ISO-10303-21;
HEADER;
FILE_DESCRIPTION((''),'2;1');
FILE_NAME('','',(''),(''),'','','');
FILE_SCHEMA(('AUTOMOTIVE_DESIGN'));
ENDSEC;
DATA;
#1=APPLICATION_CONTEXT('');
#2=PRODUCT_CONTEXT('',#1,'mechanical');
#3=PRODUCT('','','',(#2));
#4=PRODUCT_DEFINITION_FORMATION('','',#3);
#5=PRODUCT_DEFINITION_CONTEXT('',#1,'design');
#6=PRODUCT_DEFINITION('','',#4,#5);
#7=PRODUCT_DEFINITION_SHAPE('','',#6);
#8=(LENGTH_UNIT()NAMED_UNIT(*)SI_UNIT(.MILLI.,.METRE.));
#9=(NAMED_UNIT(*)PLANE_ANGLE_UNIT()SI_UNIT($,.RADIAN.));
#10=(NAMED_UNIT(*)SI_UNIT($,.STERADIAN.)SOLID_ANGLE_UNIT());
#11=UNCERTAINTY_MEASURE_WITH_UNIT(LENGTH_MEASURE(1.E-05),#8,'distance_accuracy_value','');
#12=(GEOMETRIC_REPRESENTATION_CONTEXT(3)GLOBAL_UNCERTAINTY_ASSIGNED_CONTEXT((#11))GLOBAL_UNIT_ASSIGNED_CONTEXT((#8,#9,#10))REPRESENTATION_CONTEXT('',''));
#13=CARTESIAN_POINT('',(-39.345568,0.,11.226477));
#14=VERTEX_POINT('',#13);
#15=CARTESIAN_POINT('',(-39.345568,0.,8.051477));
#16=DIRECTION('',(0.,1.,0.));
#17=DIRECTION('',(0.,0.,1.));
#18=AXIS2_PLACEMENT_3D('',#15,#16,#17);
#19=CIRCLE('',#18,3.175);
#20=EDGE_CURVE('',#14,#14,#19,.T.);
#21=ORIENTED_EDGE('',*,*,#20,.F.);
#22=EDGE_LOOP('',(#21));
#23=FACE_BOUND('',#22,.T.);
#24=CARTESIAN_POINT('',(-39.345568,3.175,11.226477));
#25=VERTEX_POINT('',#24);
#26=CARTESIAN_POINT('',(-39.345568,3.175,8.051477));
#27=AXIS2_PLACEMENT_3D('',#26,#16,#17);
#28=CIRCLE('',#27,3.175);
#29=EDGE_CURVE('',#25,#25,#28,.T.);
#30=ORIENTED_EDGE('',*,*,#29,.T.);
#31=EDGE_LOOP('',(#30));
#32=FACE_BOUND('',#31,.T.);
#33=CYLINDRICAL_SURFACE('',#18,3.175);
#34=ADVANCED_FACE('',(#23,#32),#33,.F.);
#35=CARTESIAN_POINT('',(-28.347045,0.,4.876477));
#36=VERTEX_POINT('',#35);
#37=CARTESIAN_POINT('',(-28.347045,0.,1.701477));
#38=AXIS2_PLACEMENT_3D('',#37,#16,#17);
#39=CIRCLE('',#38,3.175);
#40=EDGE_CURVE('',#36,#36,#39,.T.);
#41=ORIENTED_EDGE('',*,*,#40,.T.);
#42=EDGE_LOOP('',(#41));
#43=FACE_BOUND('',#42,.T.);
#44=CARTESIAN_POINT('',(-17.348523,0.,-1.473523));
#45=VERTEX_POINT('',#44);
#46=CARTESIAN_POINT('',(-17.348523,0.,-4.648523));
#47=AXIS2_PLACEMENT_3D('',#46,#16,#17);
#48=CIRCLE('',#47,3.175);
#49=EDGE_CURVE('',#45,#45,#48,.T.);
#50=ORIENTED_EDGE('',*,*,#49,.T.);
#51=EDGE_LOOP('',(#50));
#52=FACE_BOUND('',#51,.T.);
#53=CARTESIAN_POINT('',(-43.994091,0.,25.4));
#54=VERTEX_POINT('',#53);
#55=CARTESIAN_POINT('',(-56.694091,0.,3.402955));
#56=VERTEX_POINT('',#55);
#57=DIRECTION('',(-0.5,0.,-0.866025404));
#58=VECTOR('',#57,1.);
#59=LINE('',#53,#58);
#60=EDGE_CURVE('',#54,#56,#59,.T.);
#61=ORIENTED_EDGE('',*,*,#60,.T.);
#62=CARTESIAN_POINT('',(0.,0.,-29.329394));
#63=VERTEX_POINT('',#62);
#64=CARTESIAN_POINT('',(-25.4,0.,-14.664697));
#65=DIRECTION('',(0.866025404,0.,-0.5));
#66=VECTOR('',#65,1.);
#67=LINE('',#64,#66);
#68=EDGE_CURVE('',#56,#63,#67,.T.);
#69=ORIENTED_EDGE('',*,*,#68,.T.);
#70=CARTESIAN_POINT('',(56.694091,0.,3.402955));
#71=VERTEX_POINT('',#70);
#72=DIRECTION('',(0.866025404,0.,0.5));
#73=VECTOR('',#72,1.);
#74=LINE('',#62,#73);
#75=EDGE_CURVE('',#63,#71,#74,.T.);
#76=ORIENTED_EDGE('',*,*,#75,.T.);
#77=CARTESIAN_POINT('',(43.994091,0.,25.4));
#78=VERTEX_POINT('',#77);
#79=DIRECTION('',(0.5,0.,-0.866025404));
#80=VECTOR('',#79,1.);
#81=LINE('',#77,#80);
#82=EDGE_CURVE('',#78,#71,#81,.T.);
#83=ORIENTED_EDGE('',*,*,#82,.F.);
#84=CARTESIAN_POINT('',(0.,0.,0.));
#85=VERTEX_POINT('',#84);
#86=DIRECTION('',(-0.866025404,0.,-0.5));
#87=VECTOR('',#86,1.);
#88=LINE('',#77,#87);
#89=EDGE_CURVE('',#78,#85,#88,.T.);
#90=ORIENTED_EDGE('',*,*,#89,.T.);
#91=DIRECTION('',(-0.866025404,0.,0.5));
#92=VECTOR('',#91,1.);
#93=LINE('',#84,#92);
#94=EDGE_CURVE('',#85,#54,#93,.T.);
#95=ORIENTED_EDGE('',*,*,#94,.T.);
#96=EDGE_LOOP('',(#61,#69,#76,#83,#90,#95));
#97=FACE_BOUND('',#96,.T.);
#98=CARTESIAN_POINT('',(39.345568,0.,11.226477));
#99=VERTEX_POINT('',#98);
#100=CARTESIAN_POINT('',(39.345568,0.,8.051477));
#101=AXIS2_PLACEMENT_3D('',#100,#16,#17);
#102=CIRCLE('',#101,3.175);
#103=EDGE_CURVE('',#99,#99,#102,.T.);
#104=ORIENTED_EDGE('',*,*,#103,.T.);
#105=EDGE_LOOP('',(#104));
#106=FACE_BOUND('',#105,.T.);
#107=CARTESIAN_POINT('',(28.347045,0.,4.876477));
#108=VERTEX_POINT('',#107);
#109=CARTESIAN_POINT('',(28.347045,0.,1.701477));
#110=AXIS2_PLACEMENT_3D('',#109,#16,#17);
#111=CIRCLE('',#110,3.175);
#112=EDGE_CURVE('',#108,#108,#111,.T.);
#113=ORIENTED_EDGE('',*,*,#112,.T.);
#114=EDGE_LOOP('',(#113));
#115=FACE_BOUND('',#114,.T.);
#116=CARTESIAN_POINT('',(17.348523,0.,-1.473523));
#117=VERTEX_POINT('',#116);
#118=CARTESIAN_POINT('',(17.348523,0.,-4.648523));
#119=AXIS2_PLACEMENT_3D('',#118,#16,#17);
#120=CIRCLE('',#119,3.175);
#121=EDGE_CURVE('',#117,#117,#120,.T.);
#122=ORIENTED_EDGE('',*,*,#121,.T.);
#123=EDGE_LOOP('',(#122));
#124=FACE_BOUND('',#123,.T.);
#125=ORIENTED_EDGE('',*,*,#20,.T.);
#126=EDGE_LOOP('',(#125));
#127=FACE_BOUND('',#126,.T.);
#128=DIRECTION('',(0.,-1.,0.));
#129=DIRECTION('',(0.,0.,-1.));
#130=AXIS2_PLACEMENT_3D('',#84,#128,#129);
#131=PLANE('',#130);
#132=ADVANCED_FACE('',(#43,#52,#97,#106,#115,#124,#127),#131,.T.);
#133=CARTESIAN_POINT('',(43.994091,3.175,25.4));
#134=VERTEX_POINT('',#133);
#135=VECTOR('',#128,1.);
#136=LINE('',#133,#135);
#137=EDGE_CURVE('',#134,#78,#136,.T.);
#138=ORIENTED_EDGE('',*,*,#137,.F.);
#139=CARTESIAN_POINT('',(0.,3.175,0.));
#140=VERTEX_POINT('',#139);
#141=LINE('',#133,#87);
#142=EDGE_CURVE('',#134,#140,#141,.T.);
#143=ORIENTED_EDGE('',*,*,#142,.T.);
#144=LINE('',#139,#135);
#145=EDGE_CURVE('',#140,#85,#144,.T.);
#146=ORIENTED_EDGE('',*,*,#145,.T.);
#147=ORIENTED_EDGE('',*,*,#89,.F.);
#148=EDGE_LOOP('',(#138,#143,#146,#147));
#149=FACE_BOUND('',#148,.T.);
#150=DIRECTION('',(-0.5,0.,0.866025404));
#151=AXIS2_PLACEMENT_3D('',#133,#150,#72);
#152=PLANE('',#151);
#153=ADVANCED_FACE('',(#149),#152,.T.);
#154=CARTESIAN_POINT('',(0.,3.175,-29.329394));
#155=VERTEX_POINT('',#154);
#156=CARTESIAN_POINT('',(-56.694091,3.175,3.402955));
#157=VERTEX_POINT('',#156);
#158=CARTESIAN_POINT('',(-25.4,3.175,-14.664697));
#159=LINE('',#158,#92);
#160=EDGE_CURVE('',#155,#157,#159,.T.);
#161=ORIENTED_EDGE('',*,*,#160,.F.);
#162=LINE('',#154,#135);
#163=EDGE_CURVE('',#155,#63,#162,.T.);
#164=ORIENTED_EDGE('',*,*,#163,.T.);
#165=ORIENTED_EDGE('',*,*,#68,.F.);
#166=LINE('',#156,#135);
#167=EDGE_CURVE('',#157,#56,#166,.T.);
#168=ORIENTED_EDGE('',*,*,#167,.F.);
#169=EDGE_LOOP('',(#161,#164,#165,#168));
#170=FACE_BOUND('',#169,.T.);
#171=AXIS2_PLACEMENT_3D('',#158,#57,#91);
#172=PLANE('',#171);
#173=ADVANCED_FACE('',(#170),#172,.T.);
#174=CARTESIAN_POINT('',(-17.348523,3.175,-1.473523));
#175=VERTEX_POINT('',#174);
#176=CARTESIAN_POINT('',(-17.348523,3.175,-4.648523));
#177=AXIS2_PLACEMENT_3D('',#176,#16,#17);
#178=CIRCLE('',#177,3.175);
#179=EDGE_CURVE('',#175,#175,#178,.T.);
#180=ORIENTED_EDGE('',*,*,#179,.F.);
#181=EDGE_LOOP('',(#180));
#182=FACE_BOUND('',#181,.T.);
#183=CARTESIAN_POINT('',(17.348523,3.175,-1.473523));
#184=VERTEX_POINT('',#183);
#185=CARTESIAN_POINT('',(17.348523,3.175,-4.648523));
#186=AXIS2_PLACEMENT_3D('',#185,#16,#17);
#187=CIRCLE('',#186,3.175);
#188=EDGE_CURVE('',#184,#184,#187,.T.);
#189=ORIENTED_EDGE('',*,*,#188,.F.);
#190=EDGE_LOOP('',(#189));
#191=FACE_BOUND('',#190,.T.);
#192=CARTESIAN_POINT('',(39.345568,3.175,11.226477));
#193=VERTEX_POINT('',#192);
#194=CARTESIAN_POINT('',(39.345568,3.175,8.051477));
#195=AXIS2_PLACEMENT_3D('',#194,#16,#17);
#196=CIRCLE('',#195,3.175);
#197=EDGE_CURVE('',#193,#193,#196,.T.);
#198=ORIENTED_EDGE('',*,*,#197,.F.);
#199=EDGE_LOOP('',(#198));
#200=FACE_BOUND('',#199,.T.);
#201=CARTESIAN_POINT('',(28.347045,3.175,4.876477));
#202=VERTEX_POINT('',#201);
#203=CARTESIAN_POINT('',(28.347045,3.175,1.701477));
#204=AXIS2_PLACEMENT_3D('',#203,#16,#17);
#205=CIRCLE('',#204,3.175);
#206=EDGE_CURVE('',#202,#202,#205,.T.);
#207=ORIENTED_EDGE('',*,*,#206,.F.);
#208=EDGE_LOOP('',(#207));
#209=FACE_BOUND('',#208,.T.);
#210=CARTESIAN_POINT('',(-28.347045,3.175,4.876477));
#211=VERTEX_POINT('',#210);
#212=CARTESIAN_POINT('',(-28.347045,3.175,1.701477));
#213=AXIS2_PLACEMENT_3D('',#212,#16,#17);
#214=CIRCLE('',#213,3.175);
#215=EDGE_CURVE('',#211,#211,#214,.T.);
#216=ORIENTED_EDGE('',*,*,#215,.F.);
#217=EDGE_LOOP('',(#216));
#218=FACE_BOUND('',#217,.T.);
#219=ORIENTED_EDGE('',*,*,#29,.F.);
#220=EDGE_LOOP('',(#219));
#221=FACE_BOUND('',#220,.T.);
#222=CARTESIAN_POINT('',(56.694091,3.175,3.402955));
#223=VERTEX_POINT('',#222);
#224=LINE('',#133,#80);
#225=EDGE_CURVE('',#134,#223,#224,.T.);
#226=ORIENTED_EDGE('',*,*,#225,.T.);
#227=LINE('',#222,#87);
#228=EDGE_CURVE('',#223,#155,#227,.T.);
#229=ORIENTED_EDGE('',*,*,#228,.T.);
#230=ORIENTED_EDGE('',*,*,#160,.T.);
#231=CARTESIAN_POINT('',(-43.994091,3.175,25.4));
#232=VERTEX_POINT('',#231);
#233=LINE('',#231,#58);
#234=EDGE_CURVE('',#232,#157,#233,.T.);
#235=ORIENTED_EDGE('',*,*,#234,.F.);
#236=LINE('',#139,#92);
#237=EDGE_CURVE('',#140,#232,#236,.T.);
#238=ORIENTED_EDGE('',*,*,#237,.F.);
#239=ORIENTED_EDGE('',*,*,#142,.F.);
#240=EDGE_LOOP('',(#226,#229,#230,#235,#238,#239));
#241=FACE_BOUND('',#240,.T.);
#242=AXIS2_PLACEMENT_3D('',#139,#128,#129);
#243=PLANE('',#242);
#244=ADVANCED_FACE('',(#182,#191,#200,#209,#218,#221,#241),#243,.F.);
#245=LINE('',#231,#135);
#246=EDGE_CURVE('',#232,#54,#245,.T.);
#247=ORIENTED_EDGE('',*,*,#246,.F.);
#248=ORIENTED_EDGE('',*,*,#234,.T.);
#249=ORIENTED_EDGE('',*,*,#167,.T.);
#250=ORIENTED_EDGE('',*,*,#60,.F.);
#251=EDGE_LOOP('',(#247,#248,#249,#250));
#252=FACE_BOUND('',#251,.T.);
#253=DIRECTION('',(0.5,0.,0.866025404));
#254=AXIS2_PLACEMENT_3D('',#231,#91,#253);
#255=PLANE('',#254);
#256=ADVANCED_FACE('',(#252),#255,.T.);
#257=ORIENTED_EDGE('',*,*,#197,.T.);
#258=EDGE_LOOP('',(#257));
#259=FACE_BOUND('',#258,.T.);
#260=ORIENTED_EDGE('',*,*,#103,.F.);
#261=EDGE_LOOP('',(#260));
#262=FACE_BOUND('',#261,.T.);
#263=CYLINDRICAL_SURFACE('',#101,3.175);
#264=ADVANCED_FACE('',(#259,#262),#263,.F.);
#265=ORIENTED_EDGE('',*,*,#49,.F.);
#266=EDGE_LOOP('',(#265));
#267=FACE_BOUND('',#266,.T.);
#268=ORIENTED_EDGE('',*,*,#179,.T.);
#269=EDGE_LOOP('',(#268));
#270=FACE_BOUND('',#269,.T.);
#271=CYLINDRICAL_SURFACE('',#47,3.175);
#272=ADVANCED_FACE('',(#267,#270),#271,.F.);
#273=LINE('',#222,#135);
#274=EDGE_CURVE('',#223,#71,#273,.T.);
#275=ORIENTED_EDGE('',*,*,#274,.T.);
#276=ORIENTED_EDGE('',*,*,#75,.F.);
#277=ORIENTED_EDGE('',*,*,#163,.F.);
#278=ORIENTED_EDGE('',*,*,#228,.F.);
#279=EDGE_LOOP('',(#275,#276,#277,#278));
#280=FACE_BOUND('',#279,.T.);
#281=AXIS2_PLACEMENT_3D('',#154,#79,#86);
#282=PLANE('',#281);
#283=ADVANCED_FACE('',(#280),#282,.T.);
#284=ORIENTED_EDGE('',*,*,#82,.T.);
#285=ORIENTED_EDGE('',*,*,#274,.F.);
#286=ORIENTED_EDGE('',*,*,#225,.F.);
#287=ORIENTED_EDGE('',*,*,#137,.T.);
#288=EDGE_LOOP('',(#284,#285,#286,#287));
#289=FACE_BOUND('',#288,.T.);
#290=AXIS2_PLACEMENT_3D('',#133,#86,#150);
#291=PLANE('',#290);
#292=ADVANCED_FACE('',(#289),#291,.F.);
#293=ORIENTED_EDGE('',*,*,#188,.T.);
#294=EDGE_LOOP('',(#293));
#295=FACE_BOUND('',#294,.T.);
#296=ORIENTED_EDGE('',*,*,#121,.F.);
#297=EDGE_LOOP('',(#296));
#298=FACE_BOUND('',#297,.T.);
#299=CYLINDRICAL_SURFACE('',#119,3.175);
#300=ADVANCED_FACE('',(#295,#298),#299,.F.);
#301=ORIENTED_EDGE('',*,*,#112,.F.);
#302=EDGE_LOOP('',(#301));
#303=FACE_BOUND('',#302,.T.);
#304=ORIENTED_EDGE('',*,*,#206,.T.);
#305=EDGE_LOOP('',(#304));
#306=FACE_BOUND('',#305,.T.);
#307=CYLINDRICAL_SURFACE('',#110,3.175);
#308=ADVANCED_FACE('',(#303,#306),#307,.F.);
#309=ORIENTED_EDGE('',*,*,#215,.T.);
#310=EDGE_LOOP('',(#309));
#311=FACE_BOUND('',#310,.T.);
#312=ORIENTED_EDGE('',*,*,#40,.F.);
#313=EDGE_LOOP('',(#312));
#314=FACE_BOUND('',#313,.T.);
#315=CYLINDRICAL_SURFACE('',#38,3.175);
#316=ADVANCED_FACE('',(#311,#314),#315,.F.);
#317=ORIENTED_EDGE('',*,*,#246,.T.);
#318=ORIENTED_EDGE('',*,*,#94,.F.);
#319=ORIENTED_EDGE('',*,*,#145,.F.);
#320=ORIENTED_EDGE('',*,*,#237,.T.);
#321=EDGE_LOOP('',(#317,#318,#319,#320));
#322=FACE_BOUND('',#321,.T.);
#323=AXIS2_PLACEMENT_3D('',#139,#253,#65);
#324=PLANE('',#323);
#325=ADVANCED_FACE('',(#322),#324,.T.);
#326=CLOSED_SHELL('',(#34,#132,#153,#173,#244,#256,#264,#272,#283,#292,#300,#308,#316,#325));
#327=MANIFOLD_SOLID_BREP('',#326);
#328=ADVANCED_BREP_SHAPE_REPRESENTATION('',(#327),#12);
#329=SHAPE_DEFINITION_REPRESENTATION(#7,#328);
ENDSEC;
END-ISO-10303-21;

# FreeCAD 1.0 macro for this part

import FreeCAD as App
import Part
import Sketcher

V = App.Vector
Q = App.Units.Quantity


def add_polygon(sketch, points):
    """Adds a closed chain of lines whose ends are joined by coincident constraints."""
    first, n = sketch.GeometryCount, len(points)
    for a, b in zip(points, points[1:] + points[:1]):
        sketch.addGeometry(Part.LineSegment(App.Vector(*a, 0), App.Vector(*b, 0)), False)
    for i in range(n):
        sketch.addConstraint(Sketcher.Constraint("Coincident", first + i, 2, first + (i + 1) % n, 1))

doc = App.newDocument("Part")
body = doc.addObject("PartDesign::Body", "Body")

sketch1 = body.newObject("Sketcher::SketchObject", "Sketch")
sketch1.AttachmentSupport = (doc.getObject("XZ_Plane"), [""])
sketch1.MapMode = "FlatFace"
add_polygon(sketch1, [(0, -29), (-25, -15), (-57, 3), (-44, 25), (0, 0), (44, 25), (57, 3), (25, -15)])
sketch1.addConstraint([
    Sketcher.Constraint("Coincident", 3, 2, -1, 1),
    Sketcher.Constraint("Symmetric", 2, 2, 4, 2, -2),
    Sketcher.Constraint("Symmetric", 1, 2, 5, 2, -2),
    Sketcher.Constraint("Symmetric", 0, 2, 6, 2, -2),
    Sketcher.Constraint("PointOnObject", 7, 2, -2),
    Sketcher.Constraint("Parallel", 0, 1),
    Sketcher.Constraint("Perpendicular", 1, 2),
    Sketcher.Constraint("Perpendicular", 2, 3),
    Sketcher.Constraint("Distance", 2, Q("1 in")),
    Sketcher.Constraint("Distance", 3, Q("2 in")),
    Sketcher.Constraint("DistanceX", 0, 2, -1, 1, Q("1 in")),
    Sketcher.Constraint("DistanceY", -1, 1, 2, 2, Q("1 in")),
])
pad1 = body.newObject("PartDesign::Pad", "Pad")
pad1.Profile = sketch1
pad1.Length = Q("0.125 in")
pad1.Reversed = True

sketch2 = body.newObject("Sketcher::SketchObject", "Sketch001")
sketch2.AttachmentSupport = (doc.getObject("XZ_Plane"), [""])
sketch2.MapMode = "FlatFace"
sketch2.AttachmentOffset = App.Placement(V(0, 0, -0.125 * 25.4), App.Rotation())
sketch2.addGeometry(Part.Circle(V(-39.3, 8.1, 0), V(0, 0, 1), 3.2), False)
sketch2.addConstraint([
    Sketcher.Constraint("Diameter", 0, Q("0.25 in")),
    Sketcher.Constraint("DistanceX", 0, 3, -1, 1, 39.345568),
    Sketcher.Constraint("DistanceY", -1, 1, 0, 3, 8.051477),
])
pocket1 = body.newObject("PartDesign::Pocket", "Pocket")
pocket1.Profile = sketch2
pocket1.Length = Q("0.125 in")
pocket1.Reversed = True
doc.recompute()

datumline = body.newObject("PartDesign::Line", "DatumLine")
datumline.Placement = App.Placement(V(0, 0, 0), App.Rotation(V(0, 0, 1), V(0.866025404, 0, -0.5)))
linearpattern = body.newObject("PartDesign::LinearPattern", "LinearPattern")
linearpattern.Originals = [pocket1]
linearpattern.Direction = (datumline, [""])
linearpattern.Mode = "offset"
linearpattern.Offset = Q("0.5 in")
linearpattern.Occurrences = 3
body.Tip = linearpattern

sketch3 = body.newObject("Sketcher::SketchObject", "Sketch002")
sketch3.AttachmentSupport = (doc.getObject("XZ_Plane"), [""])
sketch3.MapMode = "FlatFace"
sketch3.AttachmentOffset = App.Placement(V(0, 0, -0.125 * 25.4), App.Rotation())
sketch3.addGeometry(Part.Circle(V(39.3, 8.1, 0), V(0, 0, 1), 3.2), False)
sketch3.addConstraint([
    Sketcher.Constraint("Diameter", 0, Q("0.25 in")),
    Sketcher.Constraint("DistanceX", -1, 1, 0, 3, 39.345568),
    Sketcher.Constraint("DistanceY", -1, 1, 0, 3, 8.051477),
])
pocket2 = body.newObject("PartDesign::Pocket", "Pocket001")
pocket2.Profile = sketch3
pocket2.Length = Q("0.125 in")
pocket2.Reversed = True
doc.recompute()

datumline2 = body.newObject("PartDesign::Line", "DatumLine001")
datumline2.Placement = App.Placement(V(0, 0, 0), App.Rotation(V(0, 0, 1), V(-0.866025404, 0, -0.5)))
linearpattern2 = body.newObject("PartDesign::LinearPattern", "LinearPattern001")
linearpattern2.Originals = [pocket2]
linearpattern2.Direction = (datumline2, [""])
linearpattern2.Mode = "offset"
linearpattern2.Offset = Q("0.5 in")
linearpattern2.Occurrences = 3
body.Tip = linearpattern2

doc.recompute()
